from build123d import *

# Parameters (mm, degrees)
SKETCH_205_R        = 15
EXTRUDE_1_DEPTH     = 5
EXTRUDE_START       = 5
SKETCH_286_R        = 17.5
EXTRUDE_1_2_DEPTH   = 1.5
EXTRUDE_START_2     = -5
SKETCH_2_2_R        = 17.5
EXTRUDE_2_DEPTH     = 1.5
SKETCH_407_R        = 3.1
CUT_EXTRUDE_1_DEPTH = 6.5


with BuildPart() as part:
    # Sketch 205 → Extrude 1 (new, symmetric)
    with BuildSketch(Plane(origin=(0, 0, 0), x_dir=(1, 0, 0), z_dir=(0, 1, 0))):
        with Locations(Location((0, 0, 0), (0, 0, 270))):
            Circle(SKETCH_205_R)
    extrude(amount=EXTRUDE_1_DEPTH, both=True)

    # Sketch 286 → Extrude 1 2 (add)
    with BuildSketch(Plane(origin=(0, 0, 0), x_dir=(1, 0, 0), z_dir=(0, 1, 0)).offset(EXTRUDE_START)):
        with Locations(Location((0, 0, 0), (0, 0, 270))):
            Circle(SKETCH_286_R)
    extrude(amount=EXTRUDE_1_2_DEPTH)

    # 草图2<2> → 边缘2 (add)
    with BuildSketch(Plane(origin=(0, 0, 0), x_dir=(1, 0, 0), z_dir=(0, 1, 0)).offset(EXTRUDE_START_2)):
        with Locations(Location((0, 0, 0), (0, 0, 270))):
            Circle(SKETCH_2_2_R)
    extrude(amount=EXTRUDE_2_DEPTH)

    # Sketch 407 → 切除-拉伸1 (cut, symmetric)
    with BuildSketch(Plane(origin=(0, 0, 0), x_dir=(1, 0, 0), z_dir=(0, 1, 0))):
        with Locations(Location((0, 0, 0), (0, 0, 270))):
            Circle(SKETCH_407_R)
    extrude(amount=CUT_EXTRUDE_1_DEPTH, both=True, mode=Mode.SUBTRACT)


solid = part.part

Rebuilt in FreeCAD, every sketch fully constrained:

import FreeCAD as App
import Part
import Sketcher
Q = App.Units.Quantity

doc = App.newDocument("Part")
body = doc.addObject("PartDesign::Body", "Body")

sketch1 = body.newObject("Sketcher::SketchObject", "Sketch")
sketch1.AttachmentSupport = (doc.getObject("XZ_Plane"), [""])
sketch1.MapMode = "FlatFace"
sketch1.addGeometry(Part.Circle(App.Vector(0, 0, 0), App.Vector(0, 0, 1), 15), False)
sketch1.addConstraint(Sketcher.Constraint("Coincident", 0, 3, -1, 1))
sketch1.addConstraint(Sketcher.Constraint("Diameter", 0, Q("30 mm")))
pad1 = body.newObject("PartDesign::Pad", "Pad")
pad1.Profile = sketch1
pad1.Length = 10
pad1.Midplane = True

sketch2 = body.newObject("Sketcher::SketchObject", "Sketch001")
sketch2.AttachmentSupport = (doc.getObject("XZ_Plane"), [""])
sketch2.MapMode = "FlatFace"
sketch2.AttachmentOffset = App.Placement(App.Vector(0, 0, -5), App.Rotation())
sketch2.addGeometry(Part.Circle(App.Vector(0, 0, 0), App.Vector(0, 0, 1), 18), False)
sketch2.addConstraint(Sketcher.Constraint("Coincident", 0, 3, -1, 1))
sketch2.addConstraint(Sketcher.Constraint("Diameter", 0, Q("35 mm")))
pad2 = body.newObject("PartDesign::Pad", "Pad001")
pad2.Profile = sketch2
pad2.Length = 1.5
pad2.Reversed = True

sketch3 = body.newObject("Sketcher::SketchObject", "Sketch002")
sketch3.AttachmentSupport = (doc.getObject("XZ_Plane"), [""])
sketch3.MapMode = "FlatFace"
sketch3.AttachmentOffset = App.Placement(App.Vector(0, 0, 5), App.Rotation())
sketch3.addGeometry(Part.Circle(App.Vector(0, 0, 0), App.Vector(0, 0, 1), 18), False)
sketch3.addConstraint(Sketcher.Constraint("Coincident", 0, 3, -1, 1))
sketch3.addConstraint(Sketcher.Constraint("Diameter", 0, Q("35 mm")))
pad3 = body.newObject("PartDesign::Pad", "Pad002")
pad3.Profile = sketch3
pad3.Length = 1.5
pad3.Reversed = True

sketch4 = body.newObject("Sketcher::SketchObject", "Sketch003")
sketch4.AttachmentSupport = (doc.getObject("XZ_Plane"), [""])
sketch4.MapMode = "FlatFace"
sketch4.addGeometry(Part.Circle(App.Vector(0, 0, 0), App.Vector(0, 0, 1), 3.1), False)
sketch4.addConstraint(Sketcher.Constraint("Coincident", 0, 3, -1, 1))
sketch4.addConstraint(Sketcher.Constraint("Diameter", 0, Q("6.2 mm")))
pocket1 = body.newObject("PartDesign::Pocket", "Pocket")
pocket1.Profile = sketch4
pocket1.Length = 13
pocket1.Midplane = True

doc.recompute()
